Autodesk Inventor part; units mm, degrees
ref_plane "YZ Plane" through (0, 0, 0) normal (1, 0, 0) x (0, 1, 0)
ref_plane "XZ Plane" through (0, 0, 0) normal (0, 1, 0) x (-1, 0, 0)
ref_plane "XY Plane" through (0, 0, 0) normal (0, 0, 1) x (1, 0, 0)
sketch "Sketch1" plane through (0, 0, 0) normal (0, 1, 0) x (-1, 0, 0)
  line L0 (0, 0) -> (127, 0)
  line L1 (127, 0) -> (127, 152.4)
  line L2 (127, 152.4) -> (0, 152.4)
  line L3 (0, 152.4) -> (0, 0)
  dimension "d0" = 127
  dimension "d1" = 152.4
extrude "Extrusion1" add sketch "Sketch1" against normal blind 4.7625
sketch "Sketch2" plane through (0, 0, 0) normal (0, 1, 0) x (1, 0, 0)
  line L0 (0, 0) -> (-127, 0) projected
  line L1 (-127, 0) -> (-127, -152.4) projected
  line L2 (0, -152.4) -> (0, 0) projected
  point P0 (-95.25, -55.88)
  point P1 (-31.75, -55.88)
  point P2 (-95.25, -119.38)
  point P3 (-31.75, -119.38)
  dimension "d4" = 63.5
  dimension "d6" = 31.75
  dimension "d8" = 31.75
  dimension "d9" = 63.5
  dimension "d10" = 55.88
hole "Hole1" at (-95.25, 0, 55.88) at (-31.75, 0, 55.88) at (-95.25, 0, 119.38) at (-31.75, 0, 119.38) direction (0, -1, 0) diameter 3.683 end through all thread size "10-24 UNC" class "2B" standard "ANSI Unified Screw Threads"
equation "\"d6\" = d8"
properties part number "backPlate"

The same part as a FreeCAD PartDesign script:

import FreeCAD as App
import Part
import Sketcher

V = App.Vector
Q = App.Units.Quantity

doc = App.newDocument("Part")
params = doc.addObject("Spreadsheet::Sheet", "Params")
for row, (alias, value) in enumerate([
    ("sketch1_width", "5 in"),
    ("sketch1_height", "6 in"),
    ("pad1_length", "0.1875 in"),
    ("sketch2_diameter", "0.145 in"),
    ("hole_diameter", "0.145 in"),
], start=1):
    params.set(f"A{row}", alias)
    params.set(f"B{row}", "=" + value)
    params.setAlias(f"B{row}", alias)

body = doc.addObject("PartDesign::Body", "Body")

sketch1 = body.newObject("Sketcher::SketchObject", "Sketch")
sketch1.AttachmentSupport = (doc.getObject("XZ_Plane"), [""])
sketch1.MapMode = "FlatFace"
sketch1.addGeometry([
    Part.LineSegment(V(0, 152, 0), V(0, 0, 0)),
    Part.LineSegment(V(0, 0, 0), V(-127, 0, 0)),
    Part.LineSegment(V(-127, 0, 0), V(-127, 152, 0)),
    Part.LineSegment(V(-127, 152, 0), V(0, 152, 0)),
], False)
sketch1.addConstraint([
    Sketcher.Constraint("Coincident", 0, 2, 1, 1),
    Sketcher.Constraint("Coincident", 1, 2, 2, 1),
    Sketcher.Constraint("Coincident", 2, 2, 3, 1),
    Sketcher.Constraint("Coincident", 3, 2, 0, 1),
    Sketcher.Constraint("Vertical", 0),
    Sketcher.Constraint("Horizontal", 1),
    Sketcher.Constraint("Vertical", 2),
    Sketcher.Constraint("Horizontal", 3),
    Sketcher.Constraint("Coincident", 0, 2, -1, 1),
    Sketcher.Constraint("DistanceX", 1, 2, 1, 1, Q("5 in")),
    Sketcher.Constraint("DistanceY", 0, 2, 0, 1, Q("6 in")),
])
sketch1.setExpression("Constraints[9]", "Params.sketch1_width")
sketch1.setExpression("Constraints[10]", "Params.sketch1_height")
pad1 = body.newObject("PartDesign::Pad", "Pad")
pad1.Profile = sketch1
pad1.setExpression("Length", "Params.pad1_length")

sketch2 = body.newObject("Sketcher::SketchObject", "Sketch001")
sketch2.AttachmentSupport = (doc.getObject("XZ_Plane"), [""])
sketch2.MapMode = "FlatFace"
sketch2.addGeometry([
    Part.Circle(V(-95.2, 55.9, 0), V(0, 0, 1), 1.8),
    Part.Circle(V(-31.8, 55.9, 0), V(0, 0, 1), 1.8),
    Part.Circle(V(-95.2, 119.4, 0), V(0, 0, 1), 1.8),
    Part.Circle(V(-31.8, 119.4, 0), V(0, 0, 1), 1.8),
], False)
sketch2.addConstraint([
    Sketcher.Constraint("Equal", 0, 1),
    Sketcher.Constraint("Equal", 1, 2),
    Sketcher.Constraint("Equal", 2, 3),
    Sketcher.Constraint("Horizontal", 0, 3, 1, 3),
    Sketcher.Constraint("Horizontal", 2, 3, 3, 3),
    Sketcher.Constraint("Vertical", 0, 3, 2, 3),
    Sketcher.Constraint("Vertical", 1, 3, 3, 3),
    Sketcher.Constraint("Diameter", 0, Q("0.145 in")),
    Sketcher.Constraint("DistanceY", -1, 1, 0, 3, Q("2.2 in")),
    Sketcher.Constraint("DistanceY", -1, 1, 2, 3, Q("4.7 in")),
    Sketcher.Constraint("DistanceX", 0, 3, 1, 3, Q("2.5 in")),
    Sketcher.Constraint("DistanceX", 0, 3, -1, 1, Q("3.75 in")),
])
sketch2.setExpression("Constraints[7]", "Params.sketch2_diameter")
doc.recompute()
hole = body.newObject("PartDesign::Hole", "Hole")
hole.Profile = sketch2
hole.ThreadType = "None"
hole.setExpression("Diameter", "Params.hole_diameter")
hole.DepthType = "ThroughAll"
hole.Reversed = True

doc.recompute()
